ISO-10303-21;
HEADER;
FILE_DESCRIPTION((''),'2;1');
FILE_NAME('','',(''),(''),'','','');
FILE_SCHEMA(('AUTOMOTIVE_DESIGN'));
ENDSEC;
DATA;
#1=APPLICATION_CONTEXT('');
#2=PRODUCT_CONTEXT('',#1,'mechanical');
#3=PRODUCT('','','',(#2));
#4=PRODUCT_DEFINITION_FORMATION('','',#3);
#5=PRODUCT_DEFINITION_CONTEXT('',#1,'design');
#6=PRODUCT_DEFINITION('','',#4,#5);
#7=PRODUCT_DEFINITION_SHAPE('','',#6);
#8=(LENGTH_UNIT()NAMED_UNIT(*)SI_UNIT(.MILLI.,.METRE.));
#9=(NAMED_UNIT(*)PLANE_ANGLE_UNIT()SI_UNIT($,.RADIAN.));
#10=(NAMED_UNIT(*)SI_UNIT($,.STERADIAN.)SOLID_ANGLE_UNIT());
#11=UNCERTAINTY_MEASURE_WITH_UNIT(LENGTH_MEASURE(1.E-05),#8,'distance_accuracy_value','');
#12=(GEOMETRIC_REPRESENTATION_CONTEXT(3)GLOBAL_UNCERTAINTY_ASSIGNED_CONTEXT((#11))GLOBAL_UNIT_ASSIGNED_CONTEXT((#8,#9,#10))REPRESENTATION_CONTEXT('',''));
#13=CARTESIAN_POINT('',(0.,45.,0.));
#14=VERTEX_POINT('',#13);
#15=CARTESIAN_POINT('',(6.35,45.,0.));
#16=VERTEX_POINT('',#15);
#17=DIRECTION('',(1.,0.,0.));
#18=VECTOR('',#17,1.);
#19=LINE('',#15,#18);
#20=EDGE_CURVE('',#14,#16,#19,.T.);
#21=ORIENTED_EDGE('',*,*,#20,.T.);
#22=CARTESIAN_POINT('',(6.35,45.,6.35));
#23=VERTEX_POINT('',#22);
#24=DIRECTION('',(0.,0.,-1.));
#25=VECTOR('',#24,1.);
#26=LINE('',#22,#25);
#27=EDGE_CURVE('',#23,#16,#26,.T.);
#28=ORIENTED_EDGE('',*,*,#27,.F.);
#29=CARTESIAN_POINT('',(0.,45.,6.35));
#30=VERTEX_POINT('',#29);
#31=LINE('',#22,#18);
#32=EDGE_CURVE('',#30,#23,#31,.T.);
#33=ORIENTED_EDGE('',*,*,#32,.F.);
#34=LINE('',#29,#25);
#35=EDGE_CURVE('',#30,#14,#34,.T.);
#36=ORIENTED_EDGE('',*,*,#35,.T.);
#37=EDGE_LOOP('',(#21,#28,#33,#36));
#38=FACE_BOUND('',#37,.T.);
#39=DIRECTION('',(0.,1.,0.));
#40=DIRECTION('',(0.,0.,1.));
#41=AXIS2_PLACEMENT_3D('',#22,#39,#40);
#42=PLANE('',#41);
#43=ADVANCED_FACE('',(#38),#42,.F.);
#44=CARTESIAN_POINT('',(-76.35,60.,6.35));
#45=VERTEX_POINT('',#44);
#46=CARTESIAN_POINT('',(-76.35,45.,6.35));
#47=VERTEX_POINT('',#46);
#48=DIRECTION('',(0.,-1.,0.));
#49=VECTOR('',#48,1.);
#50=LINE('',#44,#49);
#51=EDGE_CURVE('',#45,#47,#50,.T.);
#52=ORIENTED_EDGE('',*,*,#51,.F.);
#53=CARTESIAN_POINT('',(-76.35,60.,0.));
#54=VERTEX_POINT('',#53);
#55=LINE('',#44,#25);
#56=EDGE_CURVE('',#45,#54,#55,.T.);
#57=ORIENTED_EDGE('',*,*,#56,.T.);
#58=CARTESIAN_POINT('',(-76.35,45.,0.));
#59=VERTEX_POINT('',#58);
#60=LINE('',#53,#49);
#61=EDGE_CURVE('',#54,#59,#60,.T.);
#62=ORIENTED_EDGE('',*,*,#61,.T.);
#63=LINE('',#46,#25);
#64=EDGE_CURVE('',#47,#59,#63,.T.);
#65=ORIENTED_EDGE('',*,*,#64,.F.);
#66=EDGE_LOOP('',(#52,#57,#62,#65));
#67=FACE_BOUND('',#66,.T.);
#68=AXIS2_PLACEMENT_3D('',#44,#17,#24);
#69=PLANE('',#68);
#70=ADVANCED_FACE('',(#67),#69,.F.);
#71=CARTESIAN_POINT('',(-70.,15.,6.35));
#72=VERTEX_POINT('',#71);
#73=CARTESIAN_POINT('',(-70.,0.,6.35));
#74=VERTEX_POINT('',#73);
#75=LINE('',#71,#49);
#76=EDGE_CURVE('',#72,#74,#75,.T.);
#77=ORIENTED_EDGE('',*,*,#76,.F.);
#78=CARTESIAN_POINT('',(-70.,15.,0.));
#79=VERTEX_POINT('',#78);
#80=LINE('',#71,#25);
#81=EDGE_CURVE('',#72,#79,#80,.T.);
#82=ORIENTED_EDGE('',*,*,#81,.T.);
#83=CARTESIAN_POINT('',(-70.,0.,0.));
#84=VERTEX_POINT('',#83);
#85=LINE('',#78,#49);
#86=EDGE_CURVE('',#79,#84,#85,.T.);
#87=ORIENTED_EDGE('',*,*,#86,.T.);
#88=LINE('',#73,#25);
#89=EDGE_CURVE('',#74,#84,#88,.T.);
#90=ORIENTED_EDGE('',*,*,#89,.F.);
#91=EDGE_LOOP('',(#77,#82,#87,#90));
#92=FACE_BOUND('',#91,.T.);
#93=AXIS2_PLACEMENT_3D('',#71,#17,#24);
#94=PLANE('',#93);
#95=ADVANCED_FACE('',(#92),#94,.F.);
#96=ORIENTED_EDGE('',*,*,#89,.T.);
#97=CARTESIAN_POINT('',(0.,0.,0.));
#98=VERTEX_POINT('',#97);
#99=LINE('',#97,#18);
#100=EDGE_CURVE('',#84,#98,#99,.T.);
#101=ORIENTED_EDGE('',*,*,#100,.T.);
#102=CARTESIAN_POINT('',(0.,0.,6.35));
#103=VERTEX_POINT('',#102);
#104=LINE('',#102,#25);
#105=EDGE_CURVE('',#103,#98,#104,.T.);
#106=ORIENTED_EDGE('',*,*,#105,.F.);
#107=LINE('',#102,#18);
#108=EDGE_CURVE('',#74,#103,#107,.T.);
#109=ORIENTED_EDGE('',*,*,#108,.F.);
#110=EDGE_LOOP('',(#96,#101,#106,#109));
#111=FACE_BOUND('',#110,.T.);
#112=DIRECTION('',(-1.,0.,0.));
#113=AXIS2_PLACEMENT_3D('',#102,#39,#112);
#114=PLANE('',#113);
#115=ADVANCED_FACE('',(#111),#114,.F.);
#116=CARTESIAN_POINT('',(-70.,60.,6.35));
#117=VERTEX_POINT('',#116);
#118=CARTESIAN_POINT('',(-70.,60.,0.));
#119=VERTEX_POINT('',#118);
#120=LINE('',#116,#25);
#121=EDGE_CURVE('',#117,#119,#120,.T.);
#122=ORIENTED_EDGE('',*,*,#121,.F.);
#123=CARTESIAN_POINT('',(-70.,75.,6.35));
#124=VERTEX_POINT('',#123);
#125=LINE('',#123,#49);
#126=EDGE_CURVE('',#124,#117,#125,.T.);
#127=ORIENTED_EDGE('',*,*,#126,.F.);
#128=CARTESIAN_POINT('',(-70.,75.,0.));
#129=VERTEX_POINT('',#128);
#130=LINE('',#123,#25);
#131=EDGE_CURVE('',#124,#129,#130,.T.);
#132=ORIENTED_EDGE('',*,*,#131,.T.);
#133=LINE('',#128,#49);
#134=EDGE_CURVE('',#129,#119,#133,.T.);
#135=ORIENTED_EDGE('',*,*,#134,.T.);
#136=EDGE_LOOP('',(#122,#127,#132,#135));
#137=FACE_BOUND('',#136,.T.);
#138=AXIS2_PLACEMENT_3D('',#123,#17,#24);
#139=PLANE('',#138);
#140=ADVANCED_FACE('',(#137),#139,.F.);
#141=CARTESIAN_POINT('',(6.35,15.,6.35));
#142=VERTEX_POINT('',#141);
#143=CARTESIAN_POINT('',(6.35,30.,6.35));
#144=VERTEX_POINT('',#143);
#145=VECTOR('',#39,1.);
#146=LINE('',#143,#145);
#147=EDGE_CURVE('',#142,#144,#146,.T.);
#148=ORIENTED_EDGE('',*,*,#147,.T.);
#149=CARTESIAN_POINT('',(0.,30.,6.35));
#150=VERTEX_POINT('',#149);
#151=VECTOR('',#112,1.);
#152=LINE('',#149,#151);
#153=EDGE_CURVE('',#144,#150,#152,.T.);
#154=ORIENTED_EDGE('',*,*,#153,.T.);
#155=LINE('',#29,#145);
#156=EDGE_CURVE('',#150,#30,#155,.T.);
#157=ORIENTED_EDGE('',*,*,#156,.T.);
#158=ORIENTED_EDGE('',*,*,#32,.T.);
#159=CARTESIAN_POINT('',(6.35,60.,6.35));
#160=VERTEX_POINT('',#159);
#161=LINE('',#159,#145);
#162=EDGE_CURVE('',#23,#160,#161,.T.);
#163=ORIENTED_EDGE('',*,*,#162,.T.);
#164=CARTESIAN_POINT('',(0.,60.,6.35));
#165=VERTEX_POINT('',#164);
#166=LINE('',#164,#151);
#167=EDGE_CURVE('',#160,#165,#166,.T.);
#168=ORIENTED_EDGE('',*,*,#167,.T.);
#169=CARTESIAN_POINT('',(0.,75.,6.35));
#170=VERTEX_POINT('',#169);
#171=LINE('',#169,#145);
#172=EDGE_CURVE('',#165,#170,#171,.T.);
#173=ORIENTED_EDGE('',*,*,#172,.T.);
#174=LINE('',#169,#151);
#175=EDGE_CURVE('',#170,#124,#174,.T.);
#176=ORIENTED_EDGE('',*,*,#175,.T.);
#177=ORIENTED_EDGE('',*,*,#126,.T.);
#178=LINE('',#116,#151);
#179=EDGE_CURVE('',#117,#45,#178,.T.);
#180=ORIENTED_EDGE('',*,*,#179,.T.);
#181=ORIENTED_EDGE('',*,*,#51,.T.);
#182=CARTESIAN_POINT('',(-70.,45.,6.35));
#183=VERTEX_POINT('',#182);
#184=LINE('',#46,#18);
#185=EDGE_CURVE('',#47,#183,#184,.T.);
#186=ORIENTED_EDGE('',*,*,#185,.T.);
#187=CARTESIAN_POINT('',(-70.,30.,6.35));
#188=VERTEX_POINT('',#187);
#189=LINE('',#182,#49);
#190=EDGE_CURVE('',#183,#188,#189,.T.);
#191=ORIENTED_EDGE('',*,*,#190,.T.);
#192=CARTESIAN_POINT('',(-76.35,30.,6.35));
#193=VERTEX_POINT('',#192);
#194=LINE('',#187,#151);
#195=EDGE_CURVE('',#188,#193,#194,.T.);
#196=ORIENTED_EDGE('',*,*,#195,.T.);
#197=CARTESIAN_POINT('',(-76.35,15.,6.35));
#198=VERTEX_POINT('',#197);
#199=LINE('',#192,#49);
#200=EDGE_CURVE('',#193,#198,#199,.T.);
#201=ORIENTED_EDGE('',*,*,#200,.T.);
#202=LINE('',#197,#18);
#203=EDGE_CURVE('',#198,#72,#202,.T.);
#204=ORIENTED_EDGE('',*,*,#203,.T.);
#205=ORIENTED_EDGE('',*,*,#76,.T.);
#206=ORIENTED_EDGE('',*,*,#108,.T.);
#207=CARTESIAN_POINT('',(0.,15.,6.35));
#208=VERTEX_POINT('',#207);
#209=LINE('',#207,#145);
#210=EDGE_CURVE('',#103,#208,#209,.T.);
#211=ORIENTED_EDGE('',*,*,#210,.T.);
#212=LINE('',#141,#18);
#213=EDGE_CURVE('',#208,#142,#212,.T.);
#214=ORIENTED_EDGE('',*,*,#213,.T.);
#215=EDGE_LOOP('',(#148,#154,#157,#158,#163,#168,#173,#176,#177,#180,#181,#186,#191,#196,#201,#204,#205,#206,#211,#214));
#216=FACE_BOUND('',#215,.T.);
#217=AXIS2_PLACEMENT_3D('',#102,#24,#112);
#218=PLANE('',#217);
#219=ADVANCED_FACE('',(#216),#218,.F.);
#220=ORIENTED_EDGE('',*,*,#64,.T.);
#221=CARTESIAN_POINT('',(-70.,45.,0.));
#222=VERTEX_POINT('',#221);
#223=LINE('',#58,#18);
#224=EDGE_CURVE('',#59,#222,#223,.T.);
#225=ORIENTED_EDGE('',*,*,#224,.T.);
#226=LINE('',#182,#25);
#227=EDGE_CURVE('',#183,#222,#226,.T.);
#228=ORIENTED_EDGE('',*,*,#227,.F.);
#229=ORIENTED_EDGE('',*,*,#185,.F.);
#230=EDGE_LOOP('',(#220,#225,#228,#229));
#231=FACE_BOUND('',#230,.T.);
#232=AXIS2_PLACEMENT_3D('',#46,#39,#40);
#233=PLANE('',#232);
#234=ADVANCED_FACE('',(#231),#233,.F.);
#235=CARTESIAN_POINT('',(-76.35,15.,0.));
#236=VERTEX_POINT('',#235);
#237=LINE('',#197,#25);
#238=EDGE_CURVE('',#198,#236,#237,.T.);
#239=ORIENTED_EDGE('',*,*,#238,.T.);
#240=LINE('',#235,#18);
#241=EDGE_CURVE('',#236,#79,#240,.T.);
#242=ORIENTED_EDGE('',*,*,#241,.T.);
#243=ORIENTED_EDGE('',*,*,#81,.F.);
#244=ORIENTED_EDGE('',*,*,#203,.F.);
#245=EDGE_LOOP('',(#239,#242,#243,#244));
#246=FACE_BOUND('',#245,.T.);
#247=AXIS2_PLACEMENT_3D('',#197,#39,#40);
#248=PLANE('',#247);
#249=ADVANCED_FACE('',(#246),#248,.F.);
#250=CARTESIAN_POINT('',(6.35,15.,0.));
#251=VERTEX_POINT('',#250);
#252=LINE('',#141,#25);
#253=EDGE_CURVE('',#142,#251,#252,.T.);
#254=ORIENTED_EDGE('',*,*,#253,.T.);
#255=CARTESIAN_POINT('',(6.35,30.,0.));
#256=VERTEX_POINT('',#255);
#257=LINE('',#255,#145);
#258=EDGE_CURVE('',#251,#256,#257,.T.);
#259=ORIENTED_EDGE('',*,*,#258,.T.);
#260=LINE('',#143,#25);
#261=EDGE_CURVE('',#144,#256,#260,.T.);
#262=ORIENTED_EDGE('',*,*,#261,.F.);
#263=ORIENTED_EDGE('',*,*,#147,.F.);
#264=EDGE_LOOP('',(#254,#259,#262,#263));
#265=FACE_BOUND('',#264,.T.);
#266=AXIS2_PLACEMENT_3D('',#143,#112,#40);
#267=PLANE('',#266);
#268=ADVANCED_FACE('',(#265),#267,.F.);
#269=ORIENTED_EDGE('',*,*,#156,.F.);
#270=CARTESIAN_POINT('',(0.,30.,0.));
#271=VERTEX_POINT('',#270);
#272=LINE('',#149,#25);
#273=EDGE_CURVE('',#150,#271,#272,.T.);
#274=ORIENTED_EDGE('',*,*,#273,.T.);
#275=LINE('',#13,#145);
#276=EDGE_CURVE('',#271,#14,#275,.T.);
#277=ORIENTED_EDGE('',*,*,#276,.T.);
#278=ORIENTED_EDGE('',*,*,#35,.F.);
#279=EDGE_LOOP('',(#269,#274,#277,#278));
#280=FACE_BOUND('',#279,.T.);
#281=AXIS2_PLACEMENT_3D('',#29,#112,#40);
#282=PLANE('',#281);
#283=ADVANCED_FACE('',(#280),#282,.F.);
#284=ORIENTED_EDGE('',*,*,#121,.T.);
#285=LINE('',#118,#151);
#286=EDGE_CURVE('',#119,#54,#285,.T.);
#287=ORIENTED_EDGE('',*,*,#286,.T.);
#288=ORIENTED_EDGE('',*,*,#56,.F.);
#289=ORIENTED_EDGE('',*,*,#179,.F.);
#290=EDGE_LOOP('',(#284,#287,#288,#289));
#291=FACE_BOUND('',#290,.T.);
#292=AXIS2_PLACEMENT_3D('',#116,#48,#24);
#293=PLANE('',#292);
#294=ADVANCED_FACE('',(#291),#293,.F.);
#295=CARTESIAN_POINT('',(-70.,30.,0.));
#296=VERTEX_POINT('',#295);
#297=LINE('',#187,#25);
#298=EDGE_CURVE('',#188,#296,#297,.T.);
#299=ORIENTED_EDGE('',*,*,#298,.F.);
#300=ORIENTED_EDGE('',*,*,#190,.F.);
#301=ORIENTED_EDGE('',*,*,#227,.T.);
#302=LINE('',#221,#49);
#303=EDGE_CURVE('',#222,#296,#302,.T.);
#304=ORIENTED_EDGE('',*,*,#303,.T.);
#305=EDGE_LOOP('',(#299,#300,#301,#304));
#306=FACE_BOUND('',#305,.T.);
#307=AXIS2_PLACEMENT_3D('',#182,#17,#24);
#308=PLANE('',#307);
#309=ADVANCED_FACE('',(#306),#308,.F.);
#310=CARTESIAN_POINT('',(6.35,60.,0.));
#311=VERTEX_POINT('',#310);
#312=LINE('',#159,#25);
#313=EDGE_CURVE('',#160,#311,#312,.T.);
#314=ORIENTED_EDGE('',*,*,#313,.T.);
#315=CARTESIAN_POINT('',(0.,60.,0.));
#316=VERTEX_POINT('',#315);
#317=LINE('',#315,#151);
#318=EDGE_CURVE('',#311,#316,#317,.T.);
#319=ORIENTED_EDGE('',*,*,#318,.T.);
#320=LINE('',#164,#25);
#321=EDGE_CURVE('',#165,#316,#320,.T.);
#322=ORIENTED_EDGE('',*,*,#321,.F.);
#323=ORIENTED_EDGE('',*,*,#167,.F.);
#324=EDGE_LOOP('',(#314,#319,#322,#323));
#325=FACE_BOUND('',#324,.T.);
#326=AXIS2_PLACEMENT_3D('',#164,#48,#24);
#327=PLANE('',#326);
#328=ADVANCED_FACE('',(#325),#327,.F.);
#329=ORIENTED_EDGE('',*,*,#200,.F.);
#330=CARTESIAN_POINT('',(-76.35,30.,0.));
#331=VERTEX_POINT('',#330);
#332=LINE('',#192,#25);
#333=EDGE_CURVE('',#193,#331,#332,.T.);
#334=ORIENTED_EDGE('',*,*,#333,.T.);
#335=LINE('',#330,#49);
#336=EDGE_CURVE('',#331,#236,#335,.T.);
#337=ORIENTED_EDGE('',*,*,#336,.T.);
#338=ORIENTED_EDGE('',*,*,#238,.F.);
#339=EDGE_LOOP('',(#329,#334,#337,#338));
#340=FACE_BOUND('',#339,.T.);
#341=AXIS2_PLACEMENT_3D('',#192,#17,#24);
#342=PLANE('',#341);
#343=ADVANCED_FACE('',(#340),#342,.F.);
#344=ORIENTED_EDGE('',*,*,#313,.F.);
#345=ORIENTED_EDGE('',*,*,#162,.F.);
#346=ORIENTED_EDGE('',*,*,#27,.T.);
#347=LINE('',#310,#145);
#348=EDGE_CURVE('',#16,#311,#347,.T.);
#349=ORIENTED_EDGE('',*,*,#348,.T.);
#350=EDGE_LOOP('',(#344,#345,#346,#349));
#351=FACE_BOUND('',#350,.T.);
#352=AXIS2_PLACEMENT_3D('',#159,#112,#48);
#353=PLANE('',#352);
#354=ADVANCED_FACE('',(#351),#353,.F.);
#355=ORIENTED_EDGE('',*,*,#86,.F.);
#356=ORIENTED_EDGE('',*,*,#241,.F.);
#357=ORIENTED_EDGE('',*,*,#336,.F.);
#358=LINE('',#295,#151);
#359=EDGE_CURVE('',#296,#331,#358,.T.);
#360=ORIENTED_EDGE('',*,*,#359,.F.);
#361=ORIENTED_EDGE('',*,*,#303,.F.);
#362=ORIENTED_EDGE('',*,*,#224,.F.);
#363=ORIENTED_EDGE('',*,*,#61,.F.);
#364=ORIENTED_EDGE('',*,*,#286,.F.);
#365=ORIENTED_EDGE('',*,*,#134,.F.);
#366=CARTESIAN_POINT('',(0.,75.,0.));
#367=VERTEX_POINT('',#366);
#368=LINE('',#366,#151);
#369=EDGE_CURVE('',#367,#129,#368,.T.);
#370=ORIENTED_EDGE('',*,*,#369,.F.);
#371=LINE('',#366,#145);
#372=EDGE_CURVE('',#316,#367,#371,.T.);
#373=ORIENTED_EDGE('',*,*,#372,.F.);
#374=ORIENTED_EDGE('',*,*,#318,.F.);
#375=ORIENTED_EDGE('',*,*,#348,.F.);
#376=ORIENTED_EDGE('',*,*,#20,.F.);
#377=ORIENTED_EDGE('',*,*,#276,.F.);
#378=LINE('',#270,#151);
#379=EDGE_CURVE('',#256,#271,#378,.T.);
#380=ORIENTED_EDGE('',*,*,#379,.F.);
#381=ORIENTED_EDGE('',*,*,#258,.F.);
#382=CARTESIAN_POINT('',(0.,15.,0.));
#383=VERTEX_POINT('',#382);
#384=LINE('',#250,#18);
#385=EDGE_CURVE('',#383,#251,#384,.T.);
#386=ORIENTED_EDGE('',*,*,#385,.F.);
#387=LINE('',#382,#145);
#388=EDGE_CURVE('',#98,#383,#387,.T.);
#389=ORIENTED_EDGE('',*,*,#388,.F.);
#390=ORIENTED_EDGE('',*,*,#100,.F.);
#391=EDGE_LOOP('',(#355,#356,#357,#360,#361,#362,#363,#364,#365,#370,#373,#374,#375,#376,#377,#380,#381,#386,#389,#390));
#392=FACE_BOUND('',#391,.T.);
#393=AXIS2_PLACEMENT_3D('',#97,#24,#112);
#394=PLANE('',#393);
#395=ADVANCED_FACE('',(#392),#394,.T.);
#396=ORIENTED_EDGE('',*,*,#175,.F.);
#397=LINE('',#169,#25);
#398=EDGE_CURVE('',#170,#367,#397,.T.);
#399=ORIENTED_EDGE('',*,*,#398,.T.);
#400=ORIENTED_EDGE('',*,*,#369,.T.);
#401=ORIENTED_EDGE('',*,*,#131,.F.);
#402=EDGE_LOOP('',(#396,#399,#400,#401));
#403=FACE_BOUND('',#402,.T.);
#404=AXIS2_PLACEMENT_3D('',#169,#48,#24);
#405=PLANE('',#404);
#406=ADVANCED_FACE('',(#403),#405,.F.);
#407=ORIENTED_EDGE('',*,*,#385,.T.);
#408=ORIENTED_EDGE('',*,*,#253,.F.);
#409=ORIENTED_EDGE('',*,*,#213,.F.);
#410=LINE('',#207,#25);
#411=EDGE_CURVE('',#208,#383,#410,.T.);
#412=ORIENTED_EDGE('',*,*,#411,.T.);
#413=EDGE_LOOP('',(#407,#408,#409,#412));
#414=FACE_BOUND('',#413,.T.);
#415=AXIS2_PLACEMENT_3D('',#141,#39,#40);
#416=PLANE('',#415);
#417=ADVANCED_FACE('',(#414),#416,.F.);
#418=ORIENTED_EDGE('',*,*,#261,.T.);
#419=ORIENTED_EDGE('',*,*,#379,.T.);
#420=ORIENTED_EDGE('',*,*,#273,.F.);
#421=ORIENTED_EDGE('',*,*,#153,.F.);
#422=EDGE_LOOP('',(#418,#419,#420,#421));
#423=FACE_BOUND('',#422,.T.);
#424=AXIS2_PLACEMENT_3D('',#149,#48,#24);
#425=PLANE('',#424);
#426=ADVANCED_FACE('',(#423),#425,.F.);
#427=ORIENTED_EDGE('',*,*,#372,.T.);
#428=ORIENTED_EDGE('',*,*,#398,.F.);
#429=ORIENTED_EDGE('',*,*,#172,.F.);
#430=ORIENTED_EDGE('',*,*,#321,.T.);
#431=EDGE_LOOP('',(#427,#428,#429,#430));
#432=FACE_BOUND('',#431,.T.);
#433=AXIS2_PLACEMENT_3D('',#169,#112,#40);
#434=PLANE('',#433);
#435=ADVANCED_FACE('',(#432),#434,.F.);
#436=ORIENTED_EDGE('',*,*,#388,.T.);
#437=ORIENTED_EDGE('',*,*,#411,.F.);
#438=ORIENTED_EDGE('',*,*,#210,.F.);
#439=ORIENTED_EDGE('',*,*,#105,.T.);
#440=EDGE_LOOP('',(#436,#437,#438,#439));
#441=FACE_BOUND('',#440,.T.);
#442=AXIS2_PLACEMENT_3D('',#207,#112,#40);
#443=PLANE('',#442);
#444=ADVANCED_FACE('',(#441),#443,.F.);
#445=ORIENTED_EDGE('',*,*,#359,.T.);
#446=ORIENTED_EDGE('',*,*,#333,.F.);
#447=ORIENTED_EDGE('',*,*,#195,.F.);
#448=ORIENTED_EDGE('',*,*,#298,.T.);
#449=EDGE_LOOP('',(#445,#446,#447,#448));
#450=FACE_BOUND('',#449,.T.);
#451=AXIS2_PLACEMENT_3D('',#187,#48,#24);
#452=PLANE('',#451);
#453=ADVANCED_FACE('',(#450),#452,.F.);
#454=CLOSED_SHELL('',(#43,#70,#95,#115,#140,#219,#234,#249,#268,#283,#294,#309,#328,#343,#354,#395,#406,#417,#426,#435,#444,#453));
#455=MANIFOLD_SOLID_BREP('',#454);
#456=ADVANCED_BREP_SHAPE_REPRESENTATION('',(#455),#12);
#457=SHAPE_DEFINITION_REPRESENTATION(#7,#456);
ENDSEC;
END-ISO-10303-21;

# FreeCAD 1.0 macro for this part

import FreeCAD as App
import Part
import Sketcher
from FreeCAD import Vector


def add_polygon(sketch, points):
    """Adds a closed chain of lines whose ends are joined by coincident constraints."""
    first, n = sketch.GeometryCount, len(points)
    for a, b in zip(points, points[1:] + points[:1]):
        sketch.addGeometry(Part.LineSegment(App.Vector(*a, 0), App.Vector(*b, 0)), False)
    for i in range(n):
        sketch.addConstraint(Sketcher.Constraint("Coincident", first + i, 2, first + (i + 1) % n, 1))

doc = App.newDocument("Part")
body = doc.addObject("PartDesign::Body", "Body")

sketch1 = doc.addObject("Sketcher::SketchObject", "Sketch")
body.addObject(sketch1)
sketch1.AttachmentSupport = (doc.XY_Plane, [""])
sketch1.MapMode = "FlatFace"
add_polygon(sketch1, [(-70, 75), (-70, 60), (-76.35, 60), (-76.35, 45), (-70, 45), (-70, 30), (-76.35, 30), (-76.35, 15), (-70, 15), (-70, 0), (0, 0), (0, 15), (6.35, 15), (6.35, 30), (0, 30), (0, 45), (6.35, 45), (6.35, 60), (0, 60), (0, 75)])
sketch1.addConstraint([
    Sketcher.Constraint("Vertical", 0),
    Sketcher.Constraint("Horizontal", 1),
    Sketcher.Constraint("Vertical", 2),
    Sketcher.Constraint("Horizontal", 3),
    Sketcher.Constraint("Vertical", 4),
    Sketcher.Constraint("Horizontal", 5),
    Sketcher.Constraint("Vertical", 6),
    Sketcher.Constraint("Horizontal", 7),
    Sketcher.Constraint("Vertical", 8),
    Sketcher.Constraint("Horizontal", 9),
    Sketcher.Constraint("Vertical", 10),
    Sketcher.Constraint("Horizontal", 11),
    Sketcher.Constraint("Vertical", 12),
    Sketcher.Constraint("Horizontal", 13),
    Sketcher.Constraint("Vertical", 14),
    Sketcher.Constraint("Horizontal", 15),
    Sketcher.Constraint("Vertical", 16),
    Sketcher.Constraint("Horizontal", 17),
    Sketcher.Constraint("Vertical", 18),
    Sketcher.Constraint("Horizontal", 19),
    Sketcher.Constraint("Coincident", 9, 2, -1, 1),
    Sketcher.Constraint("PointOnObject", 13, 2, -2),
    Sketcher.Constraint("PointOnObject", 17, 2, -2),
    Sketcher.Constraint("Horizontal", 7, 2, 10, 2),
    Sketcher.Constraint("Horizontal", 5, 2, 12, 2),
    Sketcher.Constraint("Horizontal", 3, 2, 14, 2),
    Sketcher.Constraint("Horizontal", 1, 2, 16, 2),
    Sketcher.Constraint("Vertical", 0, 2, 3, 2),
    Sketcher.Constraint("Vertical", 2, 2, 5, 2),
    Sketcher.Constraint("Vertical", 4, 2, 7, 2),
    Sketcher.Constraint("Vertical", 12, 2, 15, 2),
    Sketcher.Constraint("Equal", 7, 11),
    Sketcher.Constraint("Equal", 0, 2),
    Sketcher.Constraint("Equal", 2, 4),
    Sketcher.Constraint("Equal", 4, 6),
    Sketcher.Constraint("Equal", 6, 8),
    Sketcher.Constraint("DistanceX", 9, 1, 9, 2, 70.0),
    Sketcher.Constraint("DistanceY", 0, 2, 0, 1, 15.0),
    Sketcher.Constraint("DistanceX", 1, 2, 1, 1, 6.35),
])
pad1 = doc.addObject("PartDesign::Pad", "Pad")
body.addObject(pad1)
pad1.Profile = sketch1
pad1.Length = 6.35

doc.recompute()
